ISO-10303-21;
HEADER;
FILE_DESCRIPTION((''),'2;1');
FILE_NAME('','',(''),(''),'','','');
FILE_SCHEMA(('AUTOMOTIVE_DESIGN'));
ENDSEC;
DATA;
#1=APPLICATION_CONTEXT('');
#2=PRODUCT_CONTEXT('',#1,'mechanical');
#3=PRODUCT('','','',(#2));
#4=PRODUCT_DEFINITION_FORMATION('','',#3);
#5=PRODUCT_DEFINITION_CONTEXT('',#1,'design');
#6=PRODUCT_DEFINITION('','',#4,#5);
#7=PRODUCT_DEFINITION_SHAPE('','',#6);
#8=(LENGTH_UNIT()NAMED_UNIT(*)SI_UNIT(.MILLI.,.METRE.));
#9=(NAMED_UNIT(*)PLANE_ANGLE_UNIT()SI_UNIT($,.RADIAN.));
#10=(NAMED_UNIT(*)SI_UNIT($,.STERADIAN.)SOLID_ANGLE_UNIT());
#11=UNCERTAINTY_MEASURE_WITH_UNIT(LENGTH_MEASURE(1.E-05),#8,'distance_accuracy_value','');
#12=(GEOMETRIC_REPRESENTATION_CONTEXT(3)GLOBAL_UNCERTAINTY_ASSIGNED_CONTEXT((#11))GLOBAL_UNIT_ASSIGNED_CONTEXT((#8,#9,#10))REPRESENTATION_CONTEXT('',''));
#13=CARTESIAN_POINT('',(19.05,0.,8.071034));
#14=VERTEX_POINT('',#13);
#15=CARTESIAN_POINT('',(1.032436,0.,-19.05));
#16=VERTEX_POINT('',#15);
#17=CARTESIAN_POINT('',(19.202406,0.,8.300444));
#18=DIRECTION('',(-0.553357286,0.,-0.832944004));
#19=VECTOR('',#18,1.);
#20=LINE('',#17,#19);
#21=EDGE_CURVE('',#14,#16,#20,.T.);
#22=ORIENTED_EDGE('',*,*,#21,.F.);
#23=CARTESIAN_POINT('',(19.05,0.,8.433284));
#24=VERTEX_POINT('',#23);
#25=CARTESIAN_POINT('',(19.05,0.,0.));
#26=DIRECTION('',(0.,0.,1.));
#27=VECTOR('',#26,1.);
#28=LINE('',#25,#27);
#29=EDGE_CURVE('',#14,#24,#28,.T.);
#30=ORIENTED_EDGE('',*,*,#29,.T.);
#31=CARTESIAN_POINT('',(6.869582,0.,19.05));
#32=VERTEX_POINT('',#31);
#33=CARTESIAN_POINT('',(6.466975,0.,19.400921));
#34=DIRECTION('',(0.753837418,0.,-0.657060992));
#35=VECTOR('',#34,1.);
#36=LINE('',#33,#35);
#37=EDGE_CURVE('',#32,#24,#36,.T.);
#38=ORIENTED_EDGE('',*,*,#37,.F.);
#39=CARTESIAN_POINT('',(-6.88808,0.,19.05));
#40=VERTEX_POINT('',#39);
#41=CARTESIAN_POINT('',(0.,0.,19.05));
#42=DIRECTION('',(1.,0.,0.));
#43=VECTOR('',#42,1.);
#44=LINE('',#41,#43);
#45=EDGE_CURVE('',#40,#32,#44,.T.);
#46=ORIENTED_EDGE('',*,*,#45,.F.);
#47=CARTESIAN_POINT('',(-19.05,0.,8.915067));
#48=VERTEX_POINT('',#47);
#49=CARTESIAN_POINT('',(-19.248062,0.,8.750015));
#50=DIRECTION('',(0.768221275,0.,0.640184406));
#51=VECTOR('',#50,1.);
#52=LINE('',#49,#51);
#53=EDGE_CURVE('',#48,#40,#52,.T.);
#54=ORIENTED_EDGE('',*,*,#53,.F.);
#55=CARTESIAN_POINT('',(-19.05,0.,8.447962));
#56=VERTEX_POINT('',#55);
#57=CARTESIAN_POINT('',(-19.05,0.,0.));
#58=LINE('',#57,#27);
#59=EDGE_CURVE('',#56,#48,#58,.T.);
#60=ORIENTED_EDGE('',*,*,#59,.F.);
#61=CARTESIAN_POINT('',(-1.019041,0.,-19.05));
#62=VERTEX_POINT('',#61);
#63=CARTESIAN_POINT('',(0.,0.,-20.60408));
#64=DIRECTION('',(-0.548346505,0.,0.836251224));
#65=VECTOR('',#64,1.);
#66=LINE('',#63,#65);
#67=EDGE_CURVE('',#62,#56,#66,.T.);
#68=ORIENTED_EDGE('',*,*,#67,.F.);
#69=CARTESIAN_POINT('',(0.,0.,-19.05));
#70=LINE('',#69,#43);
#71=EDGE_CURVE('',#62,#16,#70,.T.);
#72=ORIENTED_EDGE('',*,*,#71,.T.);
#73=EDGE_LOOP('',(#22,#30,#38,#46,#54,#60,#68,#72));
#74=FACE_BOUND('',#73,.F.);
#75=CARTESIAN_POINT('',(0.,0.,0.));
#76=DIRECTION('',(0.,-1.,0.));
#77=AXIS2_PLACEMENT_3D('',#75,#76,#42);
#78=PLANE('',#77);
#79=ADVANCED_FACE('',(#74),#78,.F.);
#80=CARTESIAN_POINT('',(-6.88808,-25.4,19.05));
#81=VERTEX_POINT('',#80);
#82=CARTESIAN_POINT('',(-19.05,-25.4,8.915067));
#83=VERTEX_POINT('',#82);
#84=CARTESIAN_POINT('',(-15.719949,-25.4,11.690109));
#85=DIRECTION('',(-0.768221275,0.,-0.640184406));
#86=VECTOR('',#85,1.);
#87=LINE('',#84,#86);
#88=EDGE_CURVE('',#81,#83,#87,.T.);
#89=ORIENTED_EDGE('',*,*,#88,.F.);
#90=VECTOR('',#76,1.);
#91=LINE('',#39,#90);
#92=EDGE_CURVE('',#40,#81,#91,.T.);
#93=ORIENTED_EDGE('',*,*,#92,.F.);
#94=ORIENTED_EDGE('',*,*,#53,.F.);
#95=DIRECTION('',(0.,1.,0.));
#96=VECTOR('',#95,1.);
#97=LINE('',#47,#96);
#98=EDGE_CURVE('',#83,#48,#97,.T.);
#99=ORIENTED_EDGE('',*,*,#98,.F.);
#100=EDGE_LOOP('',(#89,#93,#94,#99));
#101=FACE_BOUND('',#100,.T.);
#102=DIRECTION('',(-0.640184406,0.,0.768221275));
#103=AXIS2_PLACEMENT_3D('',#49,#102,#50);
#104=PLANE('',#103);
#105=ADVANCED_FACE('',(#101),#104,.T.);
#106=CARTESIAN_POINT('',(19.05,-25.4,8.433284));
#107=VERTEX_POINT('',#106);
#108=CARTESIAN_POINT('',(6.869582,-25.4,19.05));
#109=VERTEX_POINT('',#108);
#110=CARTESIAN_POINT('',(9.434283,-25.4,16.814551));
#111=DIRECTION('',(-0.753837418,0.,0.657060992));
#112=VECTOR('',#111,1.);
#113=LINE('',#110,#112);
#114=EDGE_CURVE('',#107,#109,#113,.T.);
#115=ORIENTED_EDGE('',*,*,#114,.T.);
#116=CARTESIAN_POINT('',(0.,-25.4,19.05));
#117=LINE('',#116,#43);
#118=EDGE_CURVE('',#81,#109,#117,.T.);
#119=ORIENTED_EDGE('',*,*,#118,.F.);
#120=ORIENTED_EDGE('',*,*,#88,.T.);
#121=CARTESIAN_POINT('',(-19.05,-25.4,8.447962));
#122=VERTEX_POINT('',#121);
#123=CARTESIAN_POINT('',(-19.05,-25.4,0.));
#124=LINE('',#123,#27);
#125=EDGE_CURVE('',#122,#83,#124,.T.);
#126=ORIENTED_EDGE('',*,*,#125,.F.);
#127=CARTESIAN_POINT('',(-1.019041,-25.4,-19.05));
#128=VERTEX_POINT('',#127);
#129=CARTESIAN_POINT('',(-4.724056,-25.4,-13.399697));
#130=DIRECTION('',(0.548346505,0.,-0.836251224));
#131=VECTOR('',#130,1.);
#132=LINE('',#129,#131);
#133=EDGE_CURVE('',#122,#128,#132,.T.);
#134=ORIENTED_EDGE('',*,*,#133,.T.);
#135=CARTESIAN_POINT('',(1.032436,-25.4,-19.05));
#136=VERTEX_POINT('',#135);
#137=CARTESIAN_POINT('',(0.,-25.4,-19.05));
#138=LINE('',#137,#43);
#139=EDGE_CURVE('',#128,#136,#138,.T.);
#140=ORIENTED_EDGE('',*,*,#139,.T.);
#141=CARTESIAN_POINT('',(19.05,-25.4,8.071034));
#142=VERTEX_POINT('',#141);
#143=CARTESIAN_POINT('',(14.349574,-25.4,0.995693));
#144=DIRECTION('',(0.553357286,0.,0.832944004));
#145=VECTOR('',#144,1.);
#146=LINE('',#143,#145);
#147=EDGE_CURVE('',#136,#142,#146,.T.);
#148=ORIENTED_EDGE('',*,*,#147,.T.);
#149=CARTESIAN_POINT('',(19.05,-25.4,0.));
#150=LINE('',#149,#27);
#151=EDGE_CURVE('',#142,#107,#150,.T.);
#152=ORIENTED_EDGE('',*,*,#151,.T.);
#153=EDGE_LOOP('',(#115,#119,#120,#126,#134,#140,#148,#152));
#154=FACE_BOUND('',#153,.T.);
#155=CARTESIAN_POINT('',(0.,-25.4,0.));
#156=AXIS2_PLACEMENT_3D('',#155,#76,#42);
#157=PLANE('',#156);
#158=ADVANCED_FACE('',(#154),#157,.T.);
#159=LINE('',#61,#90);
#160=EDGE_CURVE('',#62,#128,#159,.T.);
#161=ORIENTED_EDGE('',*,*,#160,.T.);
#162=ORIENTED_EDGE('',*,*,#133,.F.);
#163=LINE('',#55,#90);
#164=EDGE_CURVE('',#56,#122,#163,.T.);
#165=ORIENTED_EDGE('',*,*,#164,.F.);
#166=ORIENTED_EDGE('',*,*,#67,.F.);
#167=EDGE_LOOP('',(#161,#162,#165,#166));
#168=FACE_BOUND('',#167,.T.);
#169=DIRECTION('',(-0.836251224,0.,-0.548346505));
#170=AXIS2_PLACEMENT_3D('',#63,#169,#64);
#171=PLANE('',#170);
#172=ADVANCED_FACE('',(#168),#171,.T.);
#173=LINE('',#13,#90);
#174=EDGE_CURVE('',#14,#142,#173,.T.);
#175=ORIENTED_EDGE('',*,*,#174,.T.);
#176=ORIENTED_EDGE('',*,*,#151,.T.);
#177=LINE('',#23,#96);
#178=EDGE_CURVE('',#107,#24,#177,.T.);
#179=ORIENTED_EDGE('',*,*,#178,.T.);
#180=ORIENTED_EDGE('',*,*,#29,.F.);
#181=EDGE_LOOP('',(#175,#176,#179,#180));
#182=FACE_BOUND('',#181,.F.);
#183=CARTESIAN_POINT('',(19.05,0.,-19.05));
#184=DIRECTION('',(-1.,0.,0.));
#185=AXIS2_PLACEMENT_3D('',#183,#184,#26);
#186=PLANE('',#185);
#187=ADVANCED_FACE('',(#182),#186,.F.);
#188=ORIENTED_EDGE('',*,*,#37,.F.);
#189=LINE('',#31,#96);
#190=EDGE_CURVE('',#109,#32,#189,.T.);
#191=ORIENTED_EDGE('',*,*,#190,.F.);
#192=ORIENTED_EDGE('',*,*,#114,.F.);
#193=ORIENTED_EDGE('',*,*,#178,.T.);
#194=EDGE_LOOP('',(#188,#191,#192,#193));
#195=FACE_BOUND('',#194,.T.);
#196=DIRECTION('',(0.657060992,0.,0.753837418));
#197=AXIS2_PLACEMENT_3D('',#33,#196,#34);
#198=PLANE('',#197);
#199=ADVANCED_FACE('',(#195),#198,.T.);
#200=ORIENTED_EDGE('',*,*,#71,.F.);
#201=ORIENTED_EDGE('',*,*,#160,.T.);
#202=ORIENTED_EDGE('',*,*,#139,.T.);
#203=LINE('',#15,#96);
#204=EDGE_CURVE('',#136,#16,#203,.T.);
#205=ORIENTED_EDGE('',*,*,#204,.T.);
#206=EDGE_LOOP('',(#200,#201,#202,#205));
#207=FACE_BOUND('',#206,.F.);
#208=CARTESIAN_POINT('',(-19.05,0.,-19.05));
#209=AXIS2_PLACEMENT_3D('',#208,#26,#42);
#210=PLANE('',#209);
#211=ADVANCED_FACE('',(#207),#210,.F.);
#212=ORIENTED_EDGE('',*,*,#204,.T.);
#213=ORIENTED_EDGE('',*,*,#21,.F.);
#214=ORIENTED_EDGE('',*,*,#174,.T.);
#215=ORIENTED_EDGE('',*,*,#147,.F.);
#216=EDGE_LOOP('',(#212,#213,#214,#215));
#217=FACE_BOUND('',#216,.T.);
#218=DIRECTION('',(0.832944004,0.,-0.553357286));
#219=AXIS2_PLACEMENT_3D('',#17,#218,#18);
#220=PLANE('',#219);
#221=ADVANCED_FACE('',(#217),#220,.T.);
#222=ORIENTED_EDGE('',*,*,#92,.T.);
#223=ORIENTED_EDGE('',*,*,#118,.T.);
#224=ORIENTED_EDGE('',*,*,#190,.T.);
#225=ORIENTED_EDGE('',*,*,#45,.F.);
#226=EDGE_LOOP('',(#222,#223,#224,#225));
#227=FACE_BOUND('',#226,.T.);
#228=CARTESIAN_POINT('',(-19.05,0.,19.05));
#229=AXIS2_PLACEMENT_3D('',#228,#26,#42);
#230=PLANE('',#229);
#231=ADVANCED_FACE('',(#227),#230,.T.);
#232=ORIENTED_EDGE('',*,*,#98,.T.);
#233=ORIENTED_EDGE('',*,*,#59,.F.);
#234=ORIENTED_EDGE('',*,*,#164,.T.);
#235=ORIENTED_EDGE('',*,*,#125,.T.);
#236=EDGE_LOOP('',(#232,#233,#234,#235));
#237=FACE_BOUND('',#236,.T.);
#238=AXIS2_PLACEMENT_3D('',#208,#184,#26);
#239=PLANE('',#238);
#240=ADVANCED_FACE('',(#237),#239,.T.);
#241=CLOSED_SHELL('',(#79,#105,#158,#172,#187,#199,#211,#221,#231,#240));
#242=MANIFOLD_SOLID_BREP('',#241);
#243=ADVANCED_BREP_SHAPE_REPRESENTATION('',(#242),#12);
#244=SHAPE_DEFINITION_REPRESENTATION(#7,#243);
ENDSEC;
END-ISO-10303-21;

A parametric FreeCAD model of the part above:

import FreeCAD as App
import Part
import Sketcher
Q = App.Units.Quantity


def add_polygon(sketch, points):
    """Adds a closed chain of lines whose ends are joined by coincident constraints."""
    first, n = sketch.GeometryCount, len(points)
    for a, b in zip(points, points[1:] + points[:1]):
        sketch.addGeometry(Part.LineSegment(App.Vector(*a, 0), App.Vector(*b, 0)), False)
    for i in range(n):
        sketch.addConstraint(Sketcher.Constraint("Coincident", first + i, 2, first + (i + 1) % n, 1))

doc = App.newDocument("Part")
body = doc.addObject("PartDesign::Body", "Body")

sketch1 = body.newObject("Sketcher::SketchObject", "Sketch")
sketch1.AttachmentSupport = (doc.getObject("XZ_Plane"), [""])
sketch1.MapMode = "FlatFace"
add_polygon(sketch1, [(-19.05, 19.05), (-19.05, -19.05), (19.05, -19.05), (19.05, 19.05)])
sketch1.addConstraint([
    Sketcher.Constraint("Vertical", 0),
    Sketcher.Constraint("Horizontal", 1),
    Sketcher.Constraint("Vertical", 2),
    Sketcher.Constraint("Horizontal", 3),
    Sketcher.Constraint("Symmetric", 0, 2, 2, 2, -1, 1),
    Sketcher.Constraint("Equal", 3, 0),
    Sketcher.Constraint("DistanceX", 1, 1, 1, 2, Q("1.5 in")),
])
pad1 = body.newObject("PartDesign::Pad", "Pad")
pad1.Profile = sketch1
pad1.Length = Q("1 in")

sketch2 = body.newObject("Sketcher::SketchObject", "Sketch001")
sketch2.AttachmentSupport = (doc.getObject("XZ_Plane"), [""])
sketch2.MapMode = "FlatFace"
add_polygon(sketch2, [(6.466975, 19.400921), (19.202406, 8.300444), (28.725397, 0), (24.51434, 32.93645)])
add_polygon(sketch2, [(19.202406, 8.300444), (0, -20.60408), (26.372609, -38.124435)])
add_polygon(sketch2, [(0, -20.60408), (-19.248062, 8.750015), (-33.237237, -26.61987)])
add_polygon(sketch2, [(-19.248062, 8.750015), (-6.466975, 19.400921), (-27.522236, 26.920658)])
sketch2.addConstraint([
    Sketcher.Constraint("Coincident", 6, 2, 0, 2),
    Sketcher.Constraint("Coincident", 9, 2, 4, 2),
    Sketcher.Constraint("Coincident", 12, 2, 7, 2),
    Sketcher.Constraint("Symmetric", 3, 2, 10, 2, -2),
    Sketcher.Constraint("PointOnObject", 1, 2, -1),
    Sketcher.Constraint("PointOnObject", 4, 2, -2),
    Sketcher.Constraint("Parallel", 0, 1),
    Sketcher.Constraint("Perpendicular", 4, 5),
    Sketcher.Constraint("DistanceY", 4, 2, 3, 2, Q("1.575 in")),
    Sketcher.Constraint("Distance", 2, Q("33.204559 mm")),
    Sketcher.Constraint("Distance", 3, Q("22.559209 mm")),
    Sketcher.Constraint("Distance", 4, Q("34.701641 mm")),
    Sketcher.Constraint("Distance", 8, Q("38.035849 mm")),
    Sketcher.Constraint("DistanceX", -1, 1, 2, 2, Q("24.51434 mm")),
    Sketcher.Constraint("DistanceY", -1, 1, 2, 2, Q("32.93645 mm")),
    Sketcher.Constraint("DistanceY", -1, 1, 3, 2, Q("19.400921 mm")),
    Sketcher.Constraint("DistanceX", -1, 1, 5, 2, Q("26.372609 mm")),
    Sketcher.Constraint("DistanceY", 8, 2, -1, 1, Q("26.61987 mm")),
    Sketcher.Constraint("DistanceY", 0, 2, 7, 2, Q("0.449571 mm")),
    Sketcher.Constraint("DistanceX", 7, 2, 1, 2, Q("47.973459 mm")),
    Sketcher.Constraint("DistanceX", 11, 2, 10, 2, Q("21.055261 mm")),
    Sketcher.Constraint("Distance", 11, Q("22.357783 mm")),
])
pocket1 = body.newObject("PartDesign::Pocket", "Pocket")
pocket1.Profile = sketch2
pocket1.Type = "ThroughAll"
pocket1.Reversed = True

doc.recompute()
